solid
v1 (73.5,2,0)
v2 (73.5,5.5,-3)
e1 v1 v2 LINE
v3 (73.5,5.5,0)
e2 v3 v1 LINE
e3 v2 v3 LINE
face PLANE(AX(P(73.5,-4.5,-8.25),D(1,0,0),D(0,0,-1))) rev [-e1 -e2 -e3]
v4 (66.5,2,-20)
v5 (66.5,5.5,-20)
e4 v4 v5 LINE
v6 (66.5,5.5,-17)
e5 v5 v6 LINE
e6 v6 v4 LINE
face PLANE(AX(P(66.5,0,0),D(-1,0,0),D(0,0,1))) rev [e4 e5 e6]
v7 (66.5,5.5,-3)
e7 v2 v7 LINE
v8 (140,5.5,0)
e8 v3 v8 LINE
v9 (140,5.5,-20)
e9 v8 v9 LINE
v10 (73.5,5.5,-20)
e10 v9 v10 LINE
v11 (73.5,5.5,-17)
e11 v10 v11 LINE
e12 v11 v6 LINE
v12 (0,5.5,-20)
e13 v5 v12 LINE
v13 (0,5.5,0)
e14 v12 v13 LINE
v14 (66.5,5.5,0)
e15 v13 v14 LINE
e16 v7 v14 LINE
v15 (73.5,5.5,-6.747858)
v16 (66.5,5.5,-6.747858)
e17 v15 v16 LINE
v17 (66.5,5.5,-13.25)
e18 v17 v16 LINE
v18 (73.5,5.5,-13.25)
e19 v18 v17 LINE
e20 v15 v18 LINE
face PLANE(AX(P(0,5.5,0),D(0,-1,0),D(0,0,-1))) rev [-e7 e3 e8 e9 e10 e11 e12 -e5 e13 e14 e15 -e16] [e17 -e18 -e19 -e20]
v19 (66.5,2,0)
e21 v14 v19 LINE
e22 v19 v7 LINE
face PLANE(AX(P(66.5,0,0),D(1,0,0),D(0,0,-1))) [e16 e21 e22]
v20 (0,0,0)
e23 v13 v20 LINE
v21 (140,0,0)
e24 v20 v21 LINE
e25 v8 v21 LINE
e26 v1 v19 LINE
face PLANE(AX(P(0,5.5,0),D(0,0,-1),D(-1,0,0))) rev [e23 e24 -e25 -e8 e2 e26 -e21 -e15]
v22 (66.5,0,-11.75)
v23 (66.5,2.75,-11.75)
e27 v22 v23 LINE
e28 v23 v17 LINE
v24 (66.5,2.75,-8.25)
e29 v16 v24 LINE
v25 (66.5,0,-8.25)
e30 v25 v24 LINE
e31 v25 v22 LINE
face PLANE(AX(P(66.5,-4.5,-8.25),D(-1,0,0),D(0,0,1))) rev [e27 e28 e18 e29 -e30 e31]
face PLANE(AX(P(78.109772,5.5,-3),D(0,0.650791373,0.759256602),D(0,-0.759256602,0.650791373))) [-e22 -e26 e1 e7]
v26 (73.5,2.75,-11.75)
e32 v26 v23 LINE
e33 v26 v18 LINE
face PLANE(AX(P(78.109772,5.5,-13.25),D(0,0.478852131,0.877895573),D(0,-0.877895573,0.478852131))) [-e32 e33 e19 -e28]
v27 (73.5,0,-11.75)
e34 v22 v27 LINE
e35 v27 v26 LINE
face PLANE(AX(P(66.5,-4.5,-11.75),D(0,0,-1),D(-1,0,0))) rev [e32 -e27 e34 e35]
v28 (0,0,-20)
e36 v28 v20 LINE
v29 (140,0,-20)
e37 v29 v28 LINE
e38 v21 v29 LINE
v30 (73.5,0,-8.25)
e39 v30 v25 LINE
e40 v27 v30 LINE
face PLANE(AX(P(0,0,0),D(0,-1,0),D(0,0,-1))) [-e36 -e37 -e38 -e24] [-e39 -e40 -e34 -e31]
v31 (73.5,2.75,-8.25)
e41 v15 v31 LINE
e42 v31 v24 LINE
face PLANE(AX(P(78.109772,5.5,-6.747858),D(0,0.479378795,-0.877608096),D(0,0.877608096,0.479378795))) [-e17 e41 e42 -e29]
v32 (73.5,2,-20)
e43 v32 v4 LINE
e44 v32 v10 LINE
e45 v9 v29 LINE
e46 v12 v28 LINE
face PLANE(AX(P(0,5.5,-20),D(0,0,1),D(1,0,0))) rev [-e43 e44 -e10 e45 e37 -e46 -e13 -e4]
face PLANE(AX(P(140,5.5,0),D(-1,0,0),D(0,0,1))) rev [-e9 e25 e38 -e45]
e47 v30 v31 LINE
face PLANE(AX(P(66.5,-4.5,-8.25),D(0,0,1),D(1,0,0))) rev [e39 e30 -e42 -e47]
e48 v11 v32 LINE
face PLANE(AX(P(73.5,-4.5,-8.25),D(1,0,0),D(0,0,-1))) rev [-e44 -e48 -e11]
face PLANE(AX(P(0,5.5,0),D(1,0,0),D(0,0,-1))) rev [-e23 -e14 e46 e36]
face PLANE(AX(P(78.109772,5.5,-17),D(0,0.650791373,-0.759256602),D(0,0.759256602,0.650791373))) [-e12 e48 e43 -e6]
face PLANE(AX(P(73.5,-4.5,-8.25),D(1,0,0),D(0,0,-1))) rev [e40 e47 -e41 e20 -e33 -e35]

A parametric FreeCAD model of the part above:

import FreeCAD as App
import Part
import Sketcher

V = App.Vector
Q = App.Units.Quantity


def add_polygon(sketch, points):
    """Adds a closed chain of lines whose ends are joined by coincident constraints."""
    first, n = sketch.GeometryCount, len(points)
    for a, b in zip(points, points[1:] + points[:1]):
        sketch.addGeometry(Part.LineSegment(App.Vector(*a, 0), App.Vector(*b, 0)), False)
    for i in range(n):
        sketch.addConstraint(Sketcher.Constraint("Coincident", first + i, 2, first + (i + 1) % n, 1))

doc = App.newDocument("Part")
body = doc.addObject("PartDesign::Body", "Body")

# Sketch on XZ plane
sketch1 = body.newObject("Sketcher::SketchObject", "Sketch")
sketch1.AttachmentSupport = (doc.getObject("XZ_Plane"), [""])
sketch1.MapMode = "FlatFace"
add_polygon(sketch1, [(0, -20), (0, 0), (140, 0), (140, -20)])  # lines 0-3
sketch1.addConstraint([
    Sketcher.Constraint("Vertical", 0),
    Sketcher.Constraint("Horizontal", 1),
    Sketcher.Constraint("Vertical", 2),
    Sketcher.Constraint("Horizontal", 3),
    Sketcher.Constraint("Coincident", 0, 2, -1, 1),
    Sketcher.Constraint("DistanceX", 1, 1, 1, 2, Q("140 mm")),
    Sketcher.Constraint("DistanceY", 0, 1, 0, 2, Q("20 mm")),
])
pad1 = body.newObject("PartDesign::Pad", "Pad")
pad1.Profile = sketch1
pad1.Length = 5.5
pad1.Reversed = True

# Sketch on XZ plane
sketch2 = body.newObject("Sketcher::SketchObject", "Sketch001")
sketch2.AttachmentSupport = (doc.getObject("XZ_Plane"), [""])
sketch2.MapMode = "FlatFace"
sketch2.AttachmentOffset = App.Placement(V(0, 0, -5.5), App.Rotation())
add_polygon(sketch2, [(66.5, -11.8), (66.5, -8.2), (73.5, -8.2), (73.5, -11.8)])  # lines 0-3
sketch2.addConstraint([
    Sketcher.Constraint("Vertical", 0),
    Sketcher.Constraint("Horizontal", 1),
    Sketcher.Constraint("Vertical", 2),
    Sketcher.Constraint("Horizontal", 3),
    Sketcher.Constraint("DistanceX", 1, 1, 1, 2, Q("7 mm")),
    Sketcher.Constraint("DistanceY", 0, 1, 0, 2, Q("3.5 mm")),
    Sketcher.Constraint("DistanceX", -1, 1, 0, 2, Q("66.5 mm")),
    Sketcher.Constraint("DistanceY", 0, 2, -1, 1, Q("8.25 mm")),
])
pocket1 = body.newObject("PartDesign::Pocket", "Pocket")
pocket1.Profile = sketch2
pocket1.Length = 10
pocket1.Reversed = True

# Sketch on YZ plane
sketch3 = body.newObject("Sketcher::SketchObject", "Sketch002")
sketch3.AttachmentSupport = (doc.getObject("YZ_Plane"), [""])
sketch3.MapMode = "FlatFace"
sketch3.AttachmentOffset = App.Placement(V(0, 0, 66.5), App.Rotation())
add_polygon(sketch3, [(5.5, -8.2), (5.5, -6.7), (2.8, -8.2)])  # lines 0-2
add_polygon(sketch3, [(5.5, -13.2), (5.5, -11.8), (2.8, -11.8)])  # lines 3-5
add_polygon(sketch3, [(2, 0), (5.5, -3), (5.5, 0)])  # lines 6-8
add_polygon(sketch3, [(5.5, -17), (2, -20), (5.5, -20)])  # lines 9-11
sketch3.addConstraint([
    Sketcher.Constraint("Vertical", 0),
    Sketcher.Constraint("Horizontal", 2),
    Sketcher.Constraint("Vertical", 3),
    Sketcher.Constraint("Horizontal", 4),
    Sketcher.Constraint("Vertical", 7),
    Sketcher.Constraint("Horizontal", 8),
    Sketcher.Constraint("Horizontal", 10),
    Sketcher.Constraint("Vertical", 11),
    Sketcher.Constraint("PointOnObject", 7, 2, -1),
    Sketcher.Constraint("Vertical", 2, 2, 3, 2),
    Sketcher.Constraint("Vertical", 1, 2, 4, 2),
    Sketcher.Constraint("Vertical", 5, 2, 6, 2),
    Sketcher.Constraint("Vertical", 8, 2, 9, 2),
    Sketcher.Constraint("Vertical", 7, 2, 10, 2),
    Sketcher.Constraint("Equal", 7, 11),
    Sketcher.Constraint("DistanceY", 7, 1, 7, 2, Q("3 mm")),
    Sketcher.Constraint("DistanceX", 8, 2, 8, 1, Q("3.5 mm")),
    Sketcher.Constraint("DistanceY", 3, 1, 3, 2, Q("1.5 mm")),
    Sketcher.Constraint("DistanceX", -1, 1, 8, 2, Q("2 mm")),
    Sketcher.Constraint("DistanceY", 9, 2, -1, 1, Q("20 mm")),
    Sketcher.Constraint("DistanceY", 5, 2, 2, 2, Q("5 mm")),
    Sketcher.Constraint("DistanceX", 2, 1, 2, 2, Q("2.75 mm")),
    Sketcher.Constraint("DistanceY", 1, 2, -1, 1, Q("8.25 mm")),
    Sketcher.Constraint("DistanceY", 0, 1, 0, 2, Q("1.502142 mm")),
])
pocket2 = body.newObject("PartDesign::Pocket", "Pocket001")
pocket2.Profile = sketch3
pocket2.Length = 7
pocket2.Reversed = True

doc.recompute()
